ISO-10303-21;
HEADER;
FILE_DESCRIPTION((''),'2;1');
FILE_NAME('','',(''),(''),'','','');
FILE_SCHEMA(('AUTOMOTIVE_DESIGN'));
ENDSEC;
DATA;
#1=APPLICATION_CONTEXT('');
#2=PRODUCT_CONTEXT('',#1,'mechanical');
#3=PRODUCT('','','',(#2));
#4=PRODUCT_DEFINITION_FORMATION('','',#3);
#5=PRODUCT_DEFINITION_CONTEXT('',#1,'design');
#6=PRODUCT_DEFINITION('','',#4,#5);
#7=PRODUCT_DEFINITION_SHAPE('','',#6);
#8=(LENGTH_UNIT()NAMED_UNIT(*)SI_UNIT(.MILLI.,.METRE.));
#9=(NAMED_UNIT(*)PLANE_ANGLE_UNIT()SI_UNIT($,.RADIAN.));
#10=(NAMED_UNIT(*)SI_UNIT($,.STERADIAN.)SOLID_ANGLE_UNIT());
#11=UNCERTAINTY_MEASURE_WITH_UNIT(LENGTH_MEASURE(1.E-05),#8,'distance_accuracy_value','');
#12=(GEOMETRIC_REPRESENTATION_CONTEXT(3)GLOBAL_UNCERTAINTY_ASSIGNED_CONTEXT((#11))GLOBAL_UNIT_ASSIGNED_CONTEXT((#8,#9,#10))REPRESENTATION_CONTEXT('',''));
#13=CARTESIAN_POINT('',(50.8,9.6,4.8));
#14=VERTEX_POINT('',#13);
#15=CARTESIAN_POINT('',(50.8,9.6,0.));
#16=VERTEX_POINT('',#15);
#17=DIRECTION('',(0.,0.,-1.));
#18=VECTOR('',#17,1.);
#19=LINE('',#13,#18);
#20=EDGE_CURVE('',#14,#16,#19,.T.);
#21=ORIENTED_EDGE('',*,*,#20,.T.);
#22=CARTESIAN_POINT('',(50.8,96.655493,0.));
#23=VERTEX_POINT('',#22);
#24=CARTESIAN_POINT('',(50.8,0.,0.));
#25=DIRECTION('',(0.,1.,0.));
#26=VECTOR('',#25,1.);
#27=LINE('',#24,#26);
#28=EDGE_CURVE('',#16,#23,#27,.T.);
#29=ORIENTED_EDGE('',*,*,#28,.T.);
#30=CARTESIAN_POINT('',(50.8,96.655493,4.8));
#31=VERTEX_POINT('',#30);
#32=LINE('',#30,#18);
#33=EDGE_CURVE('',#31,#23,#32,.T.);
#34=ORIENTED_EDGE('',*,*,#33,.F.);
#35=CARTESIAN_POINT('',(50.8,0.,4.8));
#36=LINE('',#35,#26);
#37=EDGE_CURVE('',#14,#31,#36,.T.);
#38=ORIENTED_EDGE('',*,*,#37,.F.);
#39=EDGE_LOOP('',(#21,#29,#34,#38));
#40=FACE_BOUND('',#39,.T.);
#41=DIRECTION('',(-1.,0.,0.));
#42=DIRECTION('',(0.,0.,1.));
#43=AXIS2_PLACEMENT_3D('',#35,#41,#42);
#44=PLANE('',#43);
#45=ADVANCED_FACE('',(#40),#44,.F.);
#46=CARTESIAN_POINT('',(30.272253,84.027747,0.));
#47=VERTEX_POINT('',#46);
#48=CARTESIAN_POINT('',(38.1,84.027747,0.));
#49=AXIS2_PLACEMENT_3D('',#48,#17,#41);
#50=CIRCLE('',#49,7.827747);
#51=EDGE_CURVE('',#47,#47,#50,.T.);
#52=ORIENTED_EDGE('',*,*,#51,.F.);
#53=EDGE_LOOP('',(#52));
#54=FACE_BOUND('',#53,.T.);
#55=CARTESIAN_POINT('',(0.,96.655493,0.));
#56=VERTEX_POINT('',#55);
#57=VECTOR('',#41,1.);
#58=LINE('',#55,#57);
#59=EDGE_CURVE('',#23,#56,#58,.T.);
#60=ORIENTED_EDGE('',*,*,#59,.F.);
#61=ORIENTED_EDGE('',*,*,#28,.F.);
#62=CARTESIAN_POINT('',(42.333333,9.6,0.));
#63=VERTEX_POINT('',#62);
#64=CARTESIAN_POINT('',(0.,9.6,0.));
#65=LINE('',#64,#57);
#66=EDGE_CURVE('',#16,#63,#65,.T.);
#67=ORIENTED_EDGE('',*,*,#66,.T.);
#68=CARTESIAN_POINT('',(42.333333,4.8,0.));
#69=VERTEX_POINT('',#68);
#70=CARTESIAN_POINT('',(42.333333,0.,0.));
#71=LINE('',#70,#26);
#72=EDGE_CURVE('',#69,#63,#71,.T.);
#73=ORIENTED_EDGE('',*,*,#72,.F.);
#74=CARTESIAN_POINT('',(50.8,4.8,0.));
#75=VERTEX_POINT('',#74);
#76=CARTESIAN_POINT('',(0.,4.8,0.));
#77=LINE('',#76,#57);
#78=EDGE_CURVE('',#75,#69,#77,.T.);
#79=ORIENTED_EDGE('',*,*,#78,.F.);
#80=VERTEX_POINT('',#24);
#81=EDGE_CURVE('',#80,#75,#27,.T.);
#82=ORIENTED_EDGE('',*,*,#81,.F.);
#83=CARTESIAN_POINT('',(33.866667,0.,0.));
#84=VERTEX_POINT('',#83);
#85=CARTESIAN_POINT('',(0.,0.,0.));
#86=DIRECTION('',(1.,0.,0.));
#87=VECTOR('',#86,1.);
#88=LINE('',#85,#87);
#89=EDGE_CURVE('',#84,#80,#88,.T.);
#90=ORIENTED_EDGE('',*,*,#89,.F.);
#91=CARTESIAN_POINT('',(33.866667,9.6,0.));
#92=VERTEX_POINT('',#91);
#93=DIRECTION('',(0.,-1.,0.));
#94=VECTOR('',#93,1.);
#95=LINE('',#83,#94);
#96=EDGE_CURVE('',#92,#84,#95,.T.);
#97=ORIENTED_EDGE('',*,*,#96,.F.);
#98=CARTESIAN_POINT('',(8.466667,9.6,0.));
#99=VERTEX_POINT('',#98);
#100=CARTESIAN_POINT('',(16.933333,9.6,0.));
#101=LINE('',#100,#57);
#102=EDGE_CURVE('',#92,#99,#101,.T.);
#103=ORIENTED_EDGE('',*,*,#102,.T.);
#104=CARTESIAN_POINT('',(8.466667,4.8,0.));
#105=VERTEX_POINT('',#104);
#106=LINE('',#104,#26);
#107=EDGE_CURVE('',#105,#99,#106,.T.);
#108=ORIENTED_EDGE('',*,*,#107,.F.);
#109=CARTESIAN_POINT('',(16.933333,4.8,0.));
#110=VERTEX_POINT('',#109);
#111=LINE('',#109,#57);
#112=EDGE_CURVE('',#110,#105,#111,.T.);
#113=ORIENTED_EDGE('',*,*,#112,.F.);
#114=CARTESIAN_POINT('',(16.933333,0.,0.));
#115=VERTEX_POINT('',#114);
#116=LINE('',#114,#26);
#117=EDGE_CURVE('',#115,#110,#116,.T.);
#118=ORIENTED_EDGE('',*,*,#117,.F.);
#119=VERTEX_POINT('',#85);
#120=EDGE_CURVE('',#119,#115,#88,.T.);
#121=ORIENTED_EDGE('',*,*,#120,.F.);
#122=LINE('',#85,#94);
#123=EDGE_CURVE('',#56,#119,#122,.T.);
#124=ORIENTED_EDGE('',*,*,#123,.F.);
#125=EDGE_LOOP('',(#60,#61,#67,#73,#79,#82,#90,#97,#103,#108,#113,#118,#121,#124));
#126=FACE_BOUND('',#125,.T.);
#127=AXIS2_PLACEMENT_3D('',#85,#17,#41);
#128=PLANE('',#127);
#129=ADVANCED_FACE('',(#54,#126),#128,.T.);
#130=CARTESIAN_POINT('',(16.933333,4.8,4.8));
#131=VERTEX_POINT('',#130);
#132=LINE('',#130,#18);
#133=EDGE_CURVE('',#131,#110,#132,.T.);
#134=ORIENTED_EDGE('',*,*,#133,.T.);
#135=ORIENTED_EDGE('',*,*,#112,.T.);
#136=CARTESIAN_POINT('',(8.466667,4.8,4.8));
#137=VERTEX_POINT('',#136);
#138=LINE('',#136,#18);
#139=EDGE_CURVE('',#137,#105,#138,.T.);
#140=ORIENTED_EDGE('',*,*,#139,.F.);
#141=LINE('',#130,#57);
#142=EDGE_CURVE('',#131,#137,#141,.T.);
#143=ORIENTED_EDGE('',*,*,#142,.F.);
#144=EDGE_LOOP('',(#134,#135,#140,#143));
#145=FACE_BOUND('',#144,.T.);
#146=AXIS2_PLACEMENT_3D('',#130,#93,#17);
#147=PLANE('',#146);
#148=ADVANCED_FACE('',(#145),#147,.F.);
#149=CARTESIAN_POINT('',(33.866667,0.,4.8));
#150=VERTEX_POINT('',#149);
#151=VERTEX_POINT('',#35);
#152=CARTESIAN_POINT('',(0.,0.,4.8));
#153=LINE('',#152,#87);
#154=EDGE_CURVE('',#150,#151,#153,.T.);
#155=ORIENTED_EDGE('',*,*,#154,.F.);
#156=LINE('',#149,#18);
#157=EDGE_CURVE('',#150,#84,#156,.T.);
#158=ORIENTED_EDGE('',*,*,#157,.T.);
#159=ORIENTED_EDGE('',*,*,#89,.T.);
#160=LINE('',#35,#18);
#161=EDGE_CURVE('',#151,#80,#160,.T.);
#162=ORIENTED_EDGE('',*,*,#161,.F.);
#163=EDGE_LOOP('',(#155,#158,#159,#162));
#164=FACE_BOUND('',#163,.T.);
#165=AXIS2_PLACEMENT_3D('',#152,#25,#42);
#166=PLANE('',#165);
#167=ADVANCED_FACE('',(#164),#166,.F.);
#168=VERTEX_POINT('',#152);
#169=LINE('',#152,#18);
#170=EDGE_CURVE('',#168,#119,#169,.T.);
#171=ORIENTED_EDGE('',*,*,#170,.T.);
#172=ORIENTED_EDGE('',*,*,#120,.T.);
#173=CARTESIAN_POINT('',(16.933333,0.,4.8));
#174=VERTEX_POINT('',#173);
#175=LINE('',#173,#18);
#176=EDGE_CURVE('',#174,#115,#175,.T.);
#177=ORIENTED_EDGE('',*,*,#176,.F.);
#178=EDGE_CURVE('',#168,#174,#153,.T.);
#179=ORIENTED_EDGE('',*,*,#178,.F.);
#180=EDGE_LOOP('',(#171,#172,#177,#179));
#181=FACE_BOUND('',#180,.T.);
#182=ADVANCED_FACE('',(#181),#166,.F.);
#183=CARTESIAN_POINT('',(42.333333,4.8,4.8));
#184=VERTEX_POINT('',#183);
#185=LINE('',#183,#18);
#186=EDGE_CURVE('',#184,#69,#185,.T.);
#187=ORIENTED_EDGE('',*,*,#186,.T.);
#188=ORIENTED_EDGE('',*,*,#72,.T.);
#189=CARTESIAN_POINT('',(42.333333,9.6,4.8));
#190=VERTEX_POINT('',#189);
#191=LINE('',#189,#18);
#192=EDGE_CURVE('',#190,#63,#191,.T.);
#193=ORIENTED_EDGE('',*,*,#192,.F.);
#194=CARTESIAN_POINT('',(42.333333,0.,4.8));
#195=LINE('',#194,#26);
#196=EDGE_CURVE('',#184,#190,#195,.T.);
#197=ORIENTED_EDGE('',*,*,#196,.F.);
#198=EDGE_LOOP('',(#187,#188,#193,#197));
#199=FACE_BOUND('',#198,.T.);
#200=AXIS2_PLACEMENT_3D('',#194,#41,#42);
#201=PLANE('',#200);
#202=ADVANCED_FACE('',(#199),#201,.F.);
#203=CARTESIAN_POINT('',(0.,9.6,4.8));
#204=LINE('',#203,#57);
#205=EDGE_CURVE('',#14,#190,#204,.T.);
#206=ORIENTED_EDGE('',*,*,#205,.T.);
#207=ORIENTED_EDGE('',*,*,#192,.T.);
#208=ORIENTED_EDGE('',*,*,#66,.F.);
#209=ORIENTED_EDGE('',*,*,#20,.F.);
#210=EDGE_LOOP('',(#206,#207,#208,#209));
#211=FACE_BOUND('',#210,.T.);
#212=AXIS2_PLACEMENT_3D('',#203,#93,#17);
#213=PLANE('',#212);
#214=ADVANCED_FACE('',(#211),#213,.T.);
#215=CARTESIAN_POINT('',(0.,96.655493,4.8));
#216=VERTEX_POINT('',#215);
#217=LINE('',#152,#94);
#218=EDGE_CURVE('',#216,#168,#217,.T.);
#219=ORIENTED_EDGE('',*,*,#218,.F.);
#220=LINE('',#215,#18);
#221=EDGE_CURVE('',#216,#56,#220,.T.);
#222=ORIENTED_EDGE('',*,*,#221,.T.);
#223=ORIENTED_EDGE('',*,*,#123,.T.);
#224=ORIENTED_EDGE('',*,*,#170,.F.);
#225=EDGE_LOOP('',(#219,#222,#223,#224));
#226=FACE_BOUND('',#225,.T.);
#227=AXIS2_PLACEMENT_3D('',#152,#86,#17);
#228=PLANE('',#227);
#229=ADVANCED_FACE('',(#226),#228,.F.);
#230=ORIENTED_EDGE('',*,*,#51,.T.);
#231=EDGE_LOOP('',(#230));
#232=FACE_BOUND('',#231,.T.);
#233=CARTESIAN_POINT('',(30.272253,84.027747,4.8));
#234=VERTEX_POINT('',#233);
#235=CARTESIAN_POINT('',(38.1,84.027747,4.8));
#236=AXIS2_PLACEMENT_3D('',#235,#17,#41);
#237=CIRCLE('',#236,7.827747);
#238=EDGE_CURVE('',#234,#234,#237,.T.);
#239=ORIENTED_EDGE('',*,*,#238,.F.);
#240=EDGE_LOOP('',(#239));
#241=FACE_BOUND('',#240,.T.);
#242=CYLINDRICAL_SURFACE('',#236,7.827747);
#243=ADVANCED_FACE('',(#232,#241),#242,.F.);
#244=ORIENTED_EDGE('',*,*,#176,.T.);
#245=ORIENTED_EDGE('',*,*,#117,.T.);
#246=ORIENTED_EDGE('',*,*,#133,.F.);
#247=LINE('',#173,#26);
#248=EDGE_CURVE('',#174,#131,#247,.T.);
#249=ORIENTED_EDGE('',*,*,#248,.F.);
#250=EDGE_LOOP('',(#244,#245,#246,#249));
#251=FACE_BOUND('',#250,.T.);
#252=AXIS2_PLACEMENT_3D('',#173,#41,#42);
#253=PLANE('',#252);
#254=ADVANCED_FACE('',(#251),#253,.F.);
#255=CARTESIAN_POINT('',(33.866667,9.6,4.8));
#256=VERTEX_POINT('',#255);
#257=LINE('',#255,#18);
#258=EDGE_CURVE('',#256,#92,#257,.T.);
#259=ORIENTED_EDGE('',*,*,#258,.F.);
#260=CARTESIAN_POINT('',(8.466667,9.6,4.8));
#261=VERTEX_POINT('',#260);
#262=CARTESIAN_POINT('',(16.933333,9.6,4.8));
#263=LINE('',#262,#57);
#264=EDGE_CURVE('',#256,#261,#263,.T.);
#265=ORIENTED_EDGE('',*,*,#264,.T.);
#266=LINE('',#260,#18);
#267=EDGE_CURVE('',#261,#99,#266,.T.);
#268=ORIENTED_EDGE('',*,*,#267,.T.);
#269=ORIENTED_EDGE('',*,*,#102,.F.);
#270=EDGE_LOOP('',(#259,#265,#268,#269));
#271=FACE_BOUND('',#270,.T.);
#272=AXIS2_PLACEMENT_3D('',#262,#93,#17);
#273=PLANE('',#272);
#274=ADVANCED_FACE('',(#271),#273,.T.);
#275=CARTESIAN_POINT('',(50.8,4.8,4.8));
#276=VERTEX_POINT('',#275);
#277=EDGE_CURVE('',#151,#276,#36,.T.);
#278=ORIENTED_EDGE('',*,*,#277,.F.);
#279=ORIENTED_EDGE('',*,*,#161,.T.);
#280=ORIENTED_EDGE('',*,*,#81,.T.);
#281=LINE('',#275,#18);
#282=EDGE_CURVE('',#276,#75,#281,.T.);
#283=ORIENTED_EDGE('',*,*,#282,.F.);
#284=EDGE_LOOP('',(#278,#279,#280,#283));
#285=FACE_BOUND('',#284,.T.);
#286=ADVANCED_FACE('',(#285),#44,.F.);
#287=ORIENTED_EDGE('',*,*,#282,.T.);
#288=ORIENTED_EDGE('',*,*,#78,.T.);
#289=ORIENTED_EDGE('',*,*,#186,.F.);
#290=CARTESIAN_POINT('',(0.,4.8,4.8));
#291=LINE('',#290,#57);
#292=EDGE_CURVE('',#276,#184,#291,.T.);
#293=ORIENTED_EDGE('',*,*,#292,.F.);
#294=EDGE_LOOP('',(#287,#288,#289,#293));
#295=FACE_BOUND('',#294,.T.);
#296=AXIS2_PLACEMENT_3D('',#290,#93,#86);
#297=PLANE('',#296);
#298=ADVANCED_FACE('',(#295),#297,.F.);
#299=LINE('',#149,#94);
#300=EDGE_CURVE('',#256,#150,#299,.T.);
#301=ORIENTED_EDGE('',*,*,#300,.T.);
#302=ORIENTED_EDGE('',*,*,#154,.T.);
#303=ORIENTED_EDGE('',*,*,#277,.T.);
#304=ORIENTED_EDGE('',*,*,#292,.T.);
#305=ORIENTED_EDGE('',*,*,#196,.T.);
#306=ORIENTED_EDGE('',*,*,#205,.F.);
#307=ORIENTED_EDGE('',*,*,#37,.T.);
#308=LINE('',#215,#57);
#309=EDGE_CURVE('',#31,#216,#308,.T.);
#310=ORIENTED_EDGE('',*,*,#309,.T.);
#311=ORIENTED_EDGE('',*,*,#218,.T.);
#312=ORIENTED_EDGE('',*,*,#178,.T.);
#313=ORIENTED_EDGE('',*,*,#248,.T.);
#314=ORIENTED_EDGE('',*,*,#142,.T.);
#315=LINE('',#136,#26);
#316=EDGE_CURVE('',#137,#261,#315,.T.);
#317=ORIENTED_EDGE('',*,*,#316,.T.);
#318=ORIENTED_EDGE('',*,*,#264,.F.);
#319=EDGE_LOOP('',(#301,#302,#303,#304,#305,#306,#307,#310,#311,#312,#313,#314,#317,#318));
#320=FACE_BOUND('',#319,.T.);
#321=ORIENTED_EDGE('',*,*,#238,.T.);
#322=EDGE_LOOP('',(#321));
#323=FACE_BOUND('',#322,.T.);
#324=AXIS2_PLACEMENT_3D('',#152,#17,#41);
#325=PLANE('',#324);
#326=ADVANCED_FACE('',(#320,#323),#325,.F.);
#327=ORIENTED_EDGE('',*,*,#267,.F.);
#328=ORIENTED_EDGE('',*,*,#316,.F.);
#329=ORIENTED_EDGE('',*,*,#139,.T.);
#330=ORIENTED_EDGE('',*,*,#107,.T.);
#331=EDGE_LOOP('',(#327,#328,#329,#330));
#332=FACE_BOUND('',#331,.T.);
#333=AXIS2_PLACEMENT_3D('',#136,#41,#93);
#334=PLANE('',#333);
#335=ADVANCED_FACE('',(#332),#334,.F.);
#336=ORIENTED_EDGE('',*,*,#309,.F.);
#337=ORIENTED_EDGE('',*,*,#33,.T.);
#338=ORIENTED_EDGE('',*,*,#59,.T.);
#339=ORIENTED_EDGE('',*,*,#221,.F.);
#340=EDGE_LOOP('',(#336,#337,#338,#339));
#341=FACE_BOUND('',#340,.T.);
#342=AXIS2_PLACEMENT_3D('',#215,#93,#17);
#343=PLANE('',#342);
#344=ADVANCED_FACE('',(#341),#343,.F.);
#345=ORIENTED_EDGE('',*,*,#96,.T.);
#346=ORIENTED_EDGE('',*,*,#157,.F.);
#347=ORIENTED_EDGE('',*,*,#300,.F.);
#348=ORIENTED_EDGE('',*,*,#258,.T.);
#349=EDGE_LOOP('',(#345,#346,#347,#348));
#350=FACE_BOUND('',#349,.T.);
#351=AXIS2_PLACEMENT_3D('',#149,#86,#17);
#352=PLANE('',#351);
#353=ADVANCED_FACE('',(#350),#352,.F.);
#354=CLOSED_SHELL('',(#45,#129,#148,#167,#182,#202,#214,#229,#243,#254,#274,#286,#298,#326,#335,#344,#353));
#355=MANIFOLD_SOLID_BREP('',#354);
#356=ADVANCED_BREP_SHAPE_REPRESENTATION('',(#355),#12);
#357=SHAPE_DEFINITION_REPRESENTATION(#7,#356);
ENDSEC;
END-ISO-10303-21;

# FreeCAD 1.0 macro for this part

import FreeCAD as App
import Part
import Sketcher
from FreeCAD import Vector

doc = App.newDocument("Part")
body = doc.addObject("PartDesign::Body", "Body")

sketch1 = doc.addObject("Sketcher::SketchObject", "Sketch")
body.addObject(sketch1)
sketch1.AttachmentSupport = (doc.XY_Plane, [""])
sketch1.MapMode = "FlatFace"
sketch1.addGeometry(Part.LineSegment(Vector(0, 97, 0), Vector(0, 0, 0)), False)
sketch1.addGeometry(Part.LineSegment(Vector(0, 0, 0), Vector(51, 0, 0)), False)
sketch1.addGeometry(Part.LineSegment(Vector(51, 0, 0), Vector(51, 97, 0)), False)
sketch1.addGeometry(Part.LineSegment(Vector(51, 97, 0), Vector(0, 97, 0)), False)
sketch1.addConstraint(Sketcher.Constraint("Coincident", 0, 2, 1, 1))
sketch1.addConstraint(Sketcher.Constraint("Coincident", 1, 2, 2, 1))
sketch1.addConstraint(Sketcher.Constraint("Coincident", 2, 2, 3, 1))
sketch1.addConstraint(Sketcher.Constraint("Coincident", 3, 2, 0, 1))
sketch1.addConstraint(Sketcher.Constraint("Vertical", 0))
sketch1.addConstraint(Sketcher.Constraint("Horizontal", 1))
sketch1.addConstraint(Sketcher.Constraint("Vertical", 2))
sketch1.addConstraint(Sketcher.Constraint("Horizontal", 3))
sketch1.addConstraint(Sketcher.Constraint("Coincident", 0, 2, -1, 1))
sketch1.addConstraint(Sketcher.Constraint("DistanceX", 1, 1, 1, 2, 50.8))
sketch1.addConstraint(Sketcher.Constraint("DistanceY", 0, 2, 0, 1, 96.655493))
pad1 = doc.addObject("PartDesign::Pad", "Pad")
body.addObject(pad1)
pad1.Profile = sketch1
pad1.Length = 4.8

sketch2 = doc.addObject("Sketcher::SketchObject", "Sketch001")
body.addObject(sketch2)
sketch2.AttachmentSupport = (doc.XY_Plane, [""])
sketch2.MapMode = "FlatFace"
sketch2.addGeometry(Part.Circle(Vector(38, 84, 0), Vector(0, 0, 1), 8), False)
sketch2.addConstraint(Sketcher.Constraint("DistanceX", -1, 1, 0, 3, 38.1))
sketch2.addConstraint(Sketcher.Constraint("Diameter", 0, 15.655493))
sketch2.addConstraint(Sketcher.Constraint("DistanceY", -1, 1, 0, 3, 84.027747))
pocket1 = doc.addObject("PartDesign::Pocket", "Pocket")
body.addObject(pocket1)
pocket1.Profile = sketch2
pocket1.Type = "ThroughAll"
pocket1.Reversed = True

sketch3 = doc.addObject("Sketcher::SketchObject", "Sketch002")
body.addObject(sketch3)
sketch3.AttachmentSupport = (doc.XY_Plane, [""])
sketch3.MapMode = "FlatFace"
sketch3.addGeometry(Part.LineSegment(Vector(50.8, 9.6, 0), Vector(50.8, 4.8, 0)), False)
sketch3.addGeometry(Part.LineSegment(Vector(50.8, 4.8, 0), Vector(42.3, 4.8, 0)), False)
sketch3.addGeometry(Part.LineSegment(Vector(42.3, 4.8, 0), Vector(42.3, 9.6, 0)), False)
sketch3.addGeometry(Part.LineSegment(Vector(42.3, 9.6, 0), Vector(50.8, 9.6, 0)), False)
sketch3.addGeometry(Part.LineSegment(Vector(16.9, 9.6, 0), Vector(16.9, 4.8, 0)), False)
sketch3.addGeometry(Part.LineSegment(Vector(16.9, 4.8, 0), Vector(8.5, 4.8, 0)), False)
sketch3.addGeometry(Part.LineSegment(Vector(8.5, 4.8, 0), Vector(8.5, 9.6, 0)), False)
sketch3.addGeometry(Part.LineSegment(Vector(8.5, 9.6, 0), Vector(16.9, 9.6, 0)), False)
sketch3.addConstraint(Sketcher.Constraint("Coincident", 0, 2, 1, 1))
sketch3.addConstraint(Sketcher.Constraint("Coincident", 1, 2, 2, 1))
sketch3.addConstraint(Sketcher.Constraint("Coincident", 2, 2, 3, 1))
sketch3.addConstraint(Sketcher.Constraint("Coincident", 3, 2, 0, 1))
sketch3.addConstraint(Sketcher.Constraint("Coincident", 4, 2, 5, 1))
sketch3.addConstraint(Sketcher.Constraint("Coincident", 5, 2, 6, 1))
sketch3.addConstraint(Sketcher.Constraint("Coincident", 6, 2, 7, 1))
sketch3.addConstraint(Sketcher.Constraint("Coincident", 7, 2, 4, 1))
sketch3.addConstraint(Sketcher.Constraint("Vertical", 0))
sketch3.addConstraint(Sketcher.Constraint("Horizontal", 1))
sketch3.addConstraint(Sketcher.Constraint("Vertical", 2))
sketch3.addConstraint(Sketcher.Constraint("Horizontal", 3))
sketch3.addConstraint(Sketcher.Constraint("Vertical", 4))
sketch3.addConstraint(Sketcher.Constraint("Horizontal", 5))
sketch3.addConstraint(Sketcher.Constraint("Vertical", 6))
sketch3.addConstraint(Sketcher.Constraint("Horizontal", 7))
sketch3.addConstraint(Sketcher.Constraint("Horizontal", 1, 2, 4, 2))
sketch3.addConstraint(Sketcher.Constraint("Horizontal", 3, 2, 6, 2))
sketch3.addConstraint(Sketcher.Constraint("Equal", 3, 5))
sketch3.addConstraint(Sketcher.Constraint("DistanceY", 0, 2, 0, 1, 4.8))
sketch3.addConstraint(Sketcher.Constraint("DistanceX", -1, 1, 0, 2, 50.8))
sketch3.addConstraint(Sketcher.Constraint("DistanceY", -1, 1, 0, 2, 4.8))
sketch3.addConstraint(Sketcher.Constraint("DistanceX", 4, 2, 1, 2, 25.4))
sketch3.addConstraint(Sketcher.Constraint("DistanceX", 1, 2, 1, 1, 8.466667))
pocket2 = doc.addObject("PartDesign::Pocket", "Pocket001")
body.addObject(pocket2)
pocket2.Profile = sketch3
pocket2.Type = "ThroughAll"
pocket2.Reversed = True

sketch4 = doc.addObject("Sketcher::SketchObject", "Sketch003")
body.addObject(sketch4)
sketch4.AttachmentSupport = (doc.XY_Plane, [""])
sketch4.MapMode = "FlatFace"
sketch4.addGeometry(Part.LineSegment(Vector(34, 10, 0), Vector(34, 0, 0)), False)
sketch4.addGeometry(Part.LineSegment(Vector(34, 0, 0), Vector(17, 0, 0)), False)
sketch4.addGeometry(Part.LineSegment(Vector(17, 0, 0), Vector(17, 10, 0)), False)
sketch4.addGeometry(Part.LineSegment(Vector(17, 10, 0), Vector(34, 10, 0)), False)
sketch4.addConstraint(Sketcher.Constraint("Coincident", 0, 2, 1, 1))
sketch4.addConstraint(Sketcher.Constraint("Coincident", 1, 2, 2, 1))
sketch4.addConstraint(Sketcher.Constraint("Coincident", 2, 2, 3, 1))
sketch4.addConstraint(Sketcher.Constraint("Coincident", 3, 2, 0, 1))
sketch4.addConstraint(Sketcher.Constraint("Vertical", 0))
sketch4.addConstraint(Sketcher.Constraint("Horizontal", 1))
sketch4.addConstraint(Sketcher.Constraint("Vertical", 2))
sketch4.addConstraint(Sketcher.Constraint("Horizontal", 3))
sketch4.addConstraint(Sketcher.Constraint("PointOnObject", 0, 2, -1))
sketch4.addConstraint(Sketcher.Constraint("DistanceY", 0, 2, 0, 1, 9.6))
sketch4.addConstraint(Sketcher.Constraint("DistanceX", 1, 2, 1, 1, 16.933333))
sketch4.addConstraint(Sketcher.Constraint("DistanceX", -1, 1, 0, 2, 33.866667))
pocket3 = doc.addObject("PartDesign::Pocket", "Pocket002")
body.addObject(pocket3)
pocket3.Profile = sketch4
pocket3.Type = "ThroughAll"
pocket3.Reversed = True

doc.recompute()
